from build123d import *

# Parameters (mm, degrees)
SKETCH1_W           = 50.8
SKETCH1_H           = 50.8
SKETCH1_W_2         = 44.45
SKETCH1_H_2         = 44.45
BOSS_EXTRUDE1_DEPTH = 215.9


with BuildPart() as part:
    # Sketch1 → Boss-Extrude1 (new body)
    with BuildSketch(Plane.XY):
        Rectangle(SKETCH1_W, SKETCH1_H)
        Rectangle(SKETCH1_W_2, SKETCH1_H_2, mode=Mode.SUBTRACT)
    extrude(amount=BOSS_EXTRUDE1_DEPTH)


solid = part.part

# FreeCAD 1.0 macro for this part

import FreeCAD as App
import Part
import Sketcher
from FreeCAD import Vector
Q = App.Units.Quantity

doc = App.newDocument("Part")
body = doc.addObject("PartDesign::Body", "Body")

sketch1 = body.newObject("Sketcher::SketchObject", "Sketch")
sketch1.AttachmentSupport = (doc.getObject("XY_Plane"), [""])
sketch1.MapMode = "FlatFace"
sketch1.addGeometry(Part.LineSegment(Vector(-25, 25, 0), Vector(-25, -25, 0)), False)
sketch1.addGeometry(Part.LineSegment(Vector(-25, -25, 0), Vector(25, -25, 0)), False)
sketch1.addGeometry(Part.LineSegment(Vector(25, -25, 0), Vector(25, 25, 0)), False)
sketch1.addGeometry(Part.LineSegment(Vector(25, 25, 0), Vector(-25, 25, 0)), False)
sketch1.addGeometry(Part.LineSegment(Vector(22, -22, 0), Vector(-22, -22, 0)), False)
sketch1.addGeometry(Part.LineSegment(Vector(-22, -22, 0), Vector(-22, 22, 0)), False)
sketch1.addGeometry(Part.LineSegment(Vector(-22, 22, 0), Vector(22, 22, 0)), False)
sketch1.addGeometry(Part.LineSegment(Vector(22, 22, 0), Vector(22, -22, 0)), False)
sketch1.addConstraint(Sketcher.Constraint("Coincident", 0, 2, 1, 1))
sketch1.addConstraint(Sketcher.Constraint("Coincident", 1, 2, 2, 1))
sketch1.addConstraint(Sketcher.Constraint("Coincident", 2, 2, 3, 1))
sketch1.addConstraint(Sketcher.Constraint("Coincident", 3, 2, 0, 1))
sketch1.addConstraint(Sketcher.Constraint("Coincident", 4, 2, 5, 1))
sketch1.addConstraint(Sketcher.Constraint("Coincident", 5, 2, 6, 1))
sketch1.addConstraint(Sketcher.Constraint("Coincident", 6, 2, 7, 1))
sketch1.addConstraint(Sketcher.Constraint("Coincident", 7, 2, 4, 1))
sketch1.addConstraint(Sketcher.Constraint("Vertical", 0))
sketch1.addConstraint(Sketcher.Constraint("Horizontal", 1))
sketch1.addConstraint(Sketcher.Constraint("Vertical", 2))
sketch1.addConstraint(Sketcher.Constraint("Horizontal", 3))
sketch1.addConstraint(Sketcher.Constraint("Horizontal", 4))
sketch1.addConstraint(Sketcher.Constraint("Vertical", 5))
sketch1.addConstraint(Sketcher.Constraint("Horizontal", 6))
sketch1.addConstraint(Sketcher.Constraint("Vertical", 7))
sketch1.addConstraint(Sketcher.Constraint("Symmetric", 0, 2, 2, 2, -1, 1))
sketch1.addConstraint(Sketcher.Constraint("Symmetric", 4, 2, 6, 2, -1, 1))
sketch1.addConstraint(Sketcher.Constraint("Equal", 3, 0))
sketch1.addConstraint(Sketcher.Constraint("Equal", 6, 5))
sketch1.addConstraint(Sketcher.Constraint("DistanceX", 1, 1, 1, 2, Q("2 in")))
sketch1.addConstraint(Sketcher.Constraint("DistanceX", 4, 2, 4, 1, Q("1.75 in")))
pad1 = body.newObject("PartDesign::Pad", "Pad")
pad1.Profile = sketch1
pad1.Length = Q("8.5 in")

doc.recompute()
